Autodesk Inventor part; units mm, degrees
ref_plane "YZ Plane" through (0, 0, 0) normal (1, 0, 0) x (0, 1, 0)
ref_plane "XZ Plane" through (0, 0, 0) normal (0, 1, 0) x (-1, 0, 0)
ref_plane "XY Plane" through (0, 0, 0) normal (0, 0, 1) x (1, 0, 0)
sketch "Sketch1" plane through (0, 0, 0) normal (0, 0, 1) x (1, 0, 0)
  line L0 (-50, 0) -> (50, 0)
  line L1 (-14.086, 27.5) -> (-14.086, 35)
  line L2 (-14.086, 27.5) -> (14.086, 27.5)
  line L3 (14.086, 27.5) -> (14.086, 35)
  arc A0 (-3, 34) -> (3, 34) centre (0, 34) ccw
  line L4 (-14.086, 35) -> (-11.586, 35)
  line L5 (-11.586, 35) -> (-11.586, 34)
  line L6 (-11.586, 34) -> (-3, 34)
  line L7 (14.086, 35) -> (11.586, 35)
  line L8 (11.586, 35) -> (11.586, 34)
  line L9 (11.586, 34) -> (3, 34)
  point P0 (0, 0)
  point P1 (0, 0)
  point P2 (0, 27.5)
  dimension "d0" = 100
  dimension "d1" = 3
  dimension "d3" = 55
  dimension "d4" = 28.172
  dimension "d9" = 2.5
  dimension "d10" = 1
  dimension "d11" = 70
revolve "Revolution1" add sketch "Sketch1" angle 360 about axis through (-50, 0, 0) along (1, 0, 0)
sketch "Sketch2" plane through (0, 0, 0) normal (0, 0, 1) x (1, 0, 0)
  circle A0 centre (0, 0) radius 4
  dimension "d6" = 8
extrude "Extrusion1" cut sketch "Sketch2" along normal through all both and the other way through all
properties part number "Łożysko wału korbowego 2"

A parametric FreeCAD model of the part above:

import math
import FreeCAD as App
import Part
import Sketcher
Q = App.Units.Quantity

doc = App.newDocument("Part")
body = doc.addObject("PartDesign::Body", "Body")

sketch1 = body.newObject("Sketcher::SketchObject", "Sketch")
sketch1.AttachmentSupport = (doc.getObject("XY_Plane"), [""])
sketch1.MapMode = "FlatFace"
sketch1.addGeometry([
    Part.LineSegment(App.Vector(-14.1, 35, 0), App.Vector(-14.1, 27.5, 0)),
    Part.LineSegment(App.Vector(-14.1, 27.5, 0), App.Vector(14.1, 27.5, 0)),
    Part.LineSegment(App.Vector(14.1, 27.5, 0), App.Vector(14.1, 35, 0)),
    Part.LineSegment(App.Vector(14.1, 35, 0), App.Vector(11.6, 35, 0)),
    Part.LineSegment(App.Vector(11.6, 35, 0), App.Vector(11.6, 34, 0)),
    Part.LineSegment(App.Vector(11.6, 34, 0), App.Vector(3, 34, 0)),
    Part.ArcOfCircle(Part.Circle(App.Vector(0, 34, 0), App.Vector(0, 0, 1), 3), math.radians(180), math.radians(360)),
    Part.LineSegment(App.Vector(-3, 34, 0), App.Vector(-11.6, 34, 0)),
    Part.LineSegment(App.Vector(-11.6, 34, 0), App.Vector(-11.6, 35, 0)),
    Part.LineSegment(App.Vector(-11.6, 35, 0), App.Vector(-14.1, 35, 0)),
], False)
sketch1.addConstraint([
    Sketcher.Constraint("Coincident", 0, 2, 1, 1),
    Sketcher.Constraint("Coincident", 1, 2, 2, 1),
    Sketcher.Constraint("Coincident", 2, 2, 3, 1),
    Sketcher.Constraint("Coincident", 3, 2, 4, 1),
    Sketcher.Constraint("Coincident", 4, 2, 5, 1),
    Sketcher.Constraint("Coincident", 5, 2, 6, 2),
    Sketcher.Constraint("Coincident", 6, 1, 7, 1),
    Sketcher.Constraint("Coincident", 7, 2, 8, 1),
    Sketcher.Constraint("Coincident", 8, 2, 9, 1),
    Sketcher.Constraint("Coincident", 9, 2, 0, 1),
    Sketcher.Constraint("Vertical", 0),
    Sketcher.Constraint("Horizontal", 1),
    Sketcher.Constraint("Vertical", 2),
    Sketcher.Constraint("Horizontal", 3),
    Sketcher.Constraint("Vertical", 4),
    Sketcher.Constraint("Horizontal", 5),
    Sketcher.Constraint("Horizontal", 7),
    Sketcher.Constraint("Vertical", 8),
    Sketcher.Constraint("Horizontal", 9),
    Sketcher.Constraint("Symmetric", 5, 2, 6, 1, -2),
    Sketcher.Constraint("Symmetric", 3, 2, 8, 2, -2),
    Sketcher.Constraint("Horizontal", 6, 3, 4, 2),
    Sketcher.Constraint("Equal", 3, 9),
    Sketcher.Constraint("Radius", 6, Q("3 mm")),
    Sketcher.Constraint("DistanceY", 4, 2, 4, 1, Q("1 mm")),
    Sketcher.Constraint("DistanceX", 3, 2, 3, 1, Q("2.5 mm")),
    Sketcher.Constraint("DistanceX", 1, 1, 1, 2, Q("28.172 mm")),
    Sketcher.Constraint("DistanceY", 0, 2, 0, 1, Q("7.5 mm")),
    Sketcher.Constraint("DistanceY", -1, 1, 6, 3, Q("34 mm")),
])
revolution = body.newObject("PartDesign::Revolution", "Revolution")
revolution.Profile = sketch1
revolution.ReferenceAxis = (sketch1, ["H_Axis"])
revolution.Angle = 360

sketch2 = body.newObject("Sketcher::SketchObject", "Sketch001")
sketch2.AttachmentSupport = (doc.getObject("XY_Plane"), [""])
sketch2.MapMode = "FlatFace"
sketch2.addGeometry(Part.Circle(App.Vector(0, 0, 0), App.Vector(0, 0, 1), 4), False)
sketch2.addConstraint([
    Sketcher.Constraint("Coincident", 0, 3, -1, 1),
    Sketcher.Constraint("Diameter", 0, Q("8 mm")),
])
pocket1 = body.newObject("PartDesign::Pocket", "Pocket")
pocket1.Profile = sketch2
pocket1.Type = "ThroughAll"
pocket1.Midplane = True

doc.recompute()
